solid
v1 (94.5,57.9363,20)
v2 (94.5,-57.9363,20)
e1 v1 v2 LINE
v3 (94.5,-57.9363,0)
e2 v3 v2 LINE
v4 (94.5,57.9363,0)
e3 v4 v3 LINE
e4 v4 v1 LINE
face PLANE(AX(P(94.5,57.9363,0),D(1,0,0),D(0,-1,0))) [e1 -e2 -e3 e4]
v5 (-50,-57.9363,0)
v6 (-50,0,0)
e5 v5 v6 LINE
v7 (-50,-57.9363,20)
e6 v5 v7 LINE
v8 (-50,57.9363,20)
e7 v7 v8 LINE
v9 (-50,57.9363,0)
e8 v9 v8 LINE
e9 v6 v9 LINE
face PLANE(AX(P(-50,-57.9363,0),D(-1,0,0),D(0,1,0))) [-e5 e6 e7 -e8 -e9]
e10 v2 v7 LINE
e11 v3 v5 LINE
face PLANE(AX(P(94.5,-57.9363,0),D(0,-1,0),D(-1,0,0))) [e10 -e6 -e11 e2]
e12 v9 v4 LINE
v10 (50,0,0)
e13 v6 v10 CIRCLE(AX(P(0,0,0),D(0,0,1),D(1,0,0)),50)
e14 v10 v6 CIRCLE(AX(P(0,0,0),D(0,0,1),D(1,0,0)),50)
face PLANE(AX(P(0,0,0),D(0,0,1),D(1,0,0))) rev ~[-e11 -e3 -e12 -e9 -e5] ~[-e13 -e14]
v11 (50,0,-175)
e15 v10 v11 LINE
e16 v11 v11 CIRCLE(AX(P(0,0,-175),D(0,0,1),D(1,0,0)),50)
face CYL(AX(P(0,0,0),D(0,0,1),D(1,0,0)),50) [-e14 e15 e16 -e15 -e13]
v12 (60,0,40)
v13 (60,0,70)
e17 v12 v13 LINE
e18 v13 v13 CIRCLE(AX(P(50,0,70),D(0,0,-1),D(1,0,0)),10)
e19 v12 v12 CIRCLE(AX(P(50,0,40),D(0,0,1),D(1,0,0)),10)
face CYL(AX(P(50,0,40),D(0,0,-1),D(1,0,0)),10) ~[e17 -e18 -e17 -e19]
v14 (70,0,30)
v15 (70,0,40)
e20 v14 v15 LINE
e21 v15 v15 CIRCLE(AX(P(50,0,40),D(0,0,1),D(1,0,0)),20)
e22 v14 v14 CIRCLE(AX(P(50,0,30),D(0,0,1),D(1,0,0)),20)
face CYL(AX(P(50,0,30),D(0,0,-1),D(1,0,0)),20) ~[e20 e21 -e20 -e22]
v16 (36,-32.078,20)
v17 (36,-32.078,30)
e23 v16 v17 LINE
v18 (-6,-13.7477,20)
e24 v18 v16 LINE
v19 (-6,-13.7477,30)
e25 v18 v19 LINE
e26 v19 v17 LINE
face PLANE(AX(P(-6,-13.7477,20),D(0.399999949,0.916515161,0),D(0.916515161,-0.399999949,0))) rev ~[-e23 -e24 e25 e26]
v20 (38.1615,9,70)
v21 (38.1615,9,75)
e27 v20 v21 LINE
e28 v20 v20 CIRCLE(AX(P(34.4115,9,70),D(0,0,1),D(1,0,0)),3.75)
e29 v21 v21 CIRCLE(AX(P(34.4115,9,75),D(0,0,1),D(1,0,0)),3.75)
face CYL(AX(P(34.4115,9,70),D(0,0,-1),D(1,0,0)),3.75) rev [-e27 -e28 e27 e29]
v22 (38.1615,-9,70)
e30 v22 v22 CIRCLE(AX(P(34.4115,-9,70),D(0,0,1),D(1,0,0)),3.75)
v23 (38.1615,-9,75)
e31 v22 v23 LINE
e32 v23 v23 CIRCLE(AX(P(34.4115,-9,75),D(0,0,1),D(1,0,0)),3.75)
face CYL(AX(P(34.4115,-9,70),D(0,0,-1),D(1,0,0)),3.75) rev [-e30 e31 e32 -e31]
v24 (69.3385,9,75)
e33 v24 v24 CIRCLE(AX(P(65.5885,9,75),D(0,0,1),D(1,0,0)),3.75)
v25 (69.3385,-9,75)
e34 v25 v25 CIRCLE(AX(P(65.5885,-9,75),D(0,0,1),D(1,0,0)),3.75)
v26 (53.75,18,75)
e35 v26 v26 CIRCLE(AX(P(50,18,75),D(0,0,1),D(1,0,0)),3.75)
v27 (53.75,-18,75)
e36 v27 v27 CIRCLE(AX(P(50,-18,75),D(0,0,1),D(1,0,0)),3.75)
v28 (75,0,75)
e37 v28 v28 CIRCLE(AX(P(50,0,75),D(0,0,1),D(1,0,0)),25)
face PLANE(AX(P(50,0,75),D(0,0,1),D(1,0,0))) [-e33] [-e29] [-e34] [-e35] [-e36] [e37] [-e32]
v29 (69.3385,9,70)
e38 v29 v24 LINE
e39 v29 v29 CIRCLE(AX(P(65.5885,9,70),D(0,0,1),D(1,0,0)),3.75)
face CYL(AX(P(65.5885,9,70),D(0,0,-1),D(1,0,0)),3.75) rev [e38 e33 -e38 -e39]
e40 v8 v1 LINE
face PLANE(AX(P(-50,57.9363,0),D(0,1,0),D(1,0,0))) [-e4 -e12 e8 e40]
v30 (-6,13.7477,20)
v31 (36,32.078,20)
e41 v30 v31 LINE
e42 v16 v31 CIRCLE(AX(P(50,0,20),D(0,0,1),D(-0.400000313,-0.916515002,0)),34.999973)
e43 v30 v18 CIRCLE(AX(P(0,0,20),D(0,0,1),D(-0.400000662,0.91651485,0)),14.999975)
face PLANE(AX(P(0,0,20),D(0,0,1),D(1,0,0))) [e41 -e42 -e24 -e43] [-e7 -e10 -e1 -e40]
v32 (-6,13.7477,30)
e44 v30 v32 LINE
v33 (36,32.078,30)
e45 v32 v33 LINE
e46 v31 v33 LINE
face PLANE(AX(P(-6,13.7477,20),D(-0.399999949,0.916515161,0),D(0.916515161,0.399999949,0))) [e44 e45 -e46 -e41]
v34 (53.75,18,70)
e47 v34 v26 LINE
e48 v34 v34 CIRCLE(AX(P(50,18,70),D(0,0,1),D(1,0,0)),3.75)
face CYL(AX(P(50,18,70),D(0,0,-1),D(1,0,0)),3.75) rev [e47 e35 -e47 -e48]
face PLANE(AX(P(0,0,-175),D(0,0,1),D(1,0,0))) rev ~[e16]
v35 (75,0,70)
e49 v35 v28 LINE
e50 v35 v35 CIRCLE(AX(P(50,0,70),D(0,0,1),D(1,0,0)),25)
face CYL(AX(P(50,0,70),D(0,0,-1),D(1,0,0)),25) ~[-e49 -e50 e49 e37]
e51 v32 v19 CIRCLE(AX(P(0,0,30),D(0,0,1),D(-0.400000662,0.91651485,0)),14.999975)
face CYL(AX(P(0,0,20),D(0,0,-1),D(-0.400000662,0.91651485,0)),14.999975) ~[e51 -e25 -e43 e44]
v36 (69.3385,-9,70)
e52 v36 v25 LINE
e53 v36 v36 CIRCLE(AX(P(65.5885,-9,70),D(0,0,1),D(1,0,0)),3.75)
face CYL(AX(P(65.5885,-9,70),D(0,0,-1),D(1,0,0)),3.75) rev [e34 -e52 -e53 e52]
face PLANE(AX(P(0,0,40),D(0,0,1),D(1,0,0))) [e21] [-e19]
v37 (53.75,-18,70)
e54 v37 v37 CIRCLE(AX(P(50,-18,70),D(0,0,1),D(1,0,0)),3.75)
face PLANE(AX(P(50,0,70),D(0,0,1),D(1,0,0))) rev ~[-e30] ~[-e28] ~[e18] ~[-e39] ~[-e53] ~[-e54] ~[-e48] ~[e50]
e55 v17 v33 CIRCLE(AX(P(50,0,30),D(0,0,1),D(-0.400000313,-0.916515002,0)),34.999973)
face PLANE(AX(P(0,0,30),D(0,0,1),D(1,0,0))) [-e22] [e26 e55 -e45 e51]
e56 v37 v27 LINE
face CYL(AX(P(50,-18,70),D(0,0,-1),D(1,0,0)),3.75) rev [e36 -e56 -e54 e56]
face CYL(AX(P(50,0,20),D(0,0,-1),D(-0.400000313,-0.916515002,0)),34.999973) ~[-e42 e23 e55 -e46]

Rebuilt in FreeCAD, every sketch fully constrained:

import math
import FreeCAD as App
import Part
import Sketcher

V = App.Vector

doc = App.newDocument("Part")
params = doc.addObject("Spreadsheet::Sheet", "Params")
for row, (alias, value) in enumerate([
    ("sketch1_diameter", "100 mm"),
    ("pad1_length", "175 mm"),
    ("sketch2_width", "144.5 mm"),
    ("pad2_length", "20 mm"),
    ("sketch3_radius", "15 mm"),
    ("sketch3_radius2", "35 mm"),
    ("pad3_length", "10 mm"),
    ("sketch4_diameter", "40 mm"),
    ("pad4_length", "10 mm"),
    ("sketch5_diameter", "20 mm"),
    ("pad5_length", "30 mm"),
    ("sketch6_diameter", "50 mm"),
    ("sketch6_diameter2", "7.5 mm"),
    ("pad6_length", "5 mm"),
], start=1):
    params.set(f"A{row}", alias)
    params.set(f"B{row}", "=" + value)
    params.setAlias(f"B{row}", alias)

body = doc.addObject("PartDesign::Body", "Body")

sketch1 = body.newObject("Sketcher::SketchObject", "Sketch")
sketch1.AttachmentSupport = (doc.getObject("XY_Plane"), [""])
sketch1.MapMode = "FlatFace"
sketch1.addGeometry(Part.Circle(V(0, 0, 0), V(0, 0, 1), 50), False)
sketch1.addConstraint([
    Sketcher.Constraint("Coincident", 0, 3, -1, 1),
    Sketcher.Constraint("Diameter", 0, 100.0),
])
sketch1.setExpression("Constraints[1]", "Params.sketch1_diameter")
pad1 = body.newObject("PartDesign::Pad", "Pad")
pad1.Profile = sketch1
pad1.setExpression("Length", "Params.pad1_length")
pad1.Reversed = True

sketch2 = body.newObject("Sketcher::SketchObject", "Sketch001")
sketch2.AttachmentSupport = (doc.getObject("XY_Plane"), [""])
sketch2.MapMode = "FlatFace"
sketch2.addGeometry([
    Part.LineSegment(V(94.5, -57.9363, 0), V(94.5, 57.9363, 0)),
    Part.LineSegment(V(94.5, 57.9363, 0), V(-50, 57.9363, 0)),
    Part.LineSegment(V(-50, 57.9363, 0), V(-50, -57.9363, 0)),
    Part.LineSegment(V(-50, -57.9363, 0), V(94.5, -57.9363, 0)),
], False)
sketch2.addConstraint([
    Sketcher.Constraint("Coincident", 0, 2, 1, 1),
    Sketcher.Constraint("Coincident", 1, 2, 2, 1),
    Sketcher.Constraint("Coincident", 2, 2, 3, 1),
    Sketcher.Constraint("Coincident", 3, 2, 0, 1),
    Sketcher.Constraint("Vertical", 0),
    Sketcher.Constraint("Horizontal", 1),
    Sketcher.Constraint("Vertical", 2),
    Sketcher.Constraint("Horizontal", 3),
    Sketcher.Constraint("DistanceX", 1, 2, 1, 1, 144.5),
    Sketcher.Constraint("DistanceY", 0, 1, 0, 2, 115.8726),
    Sketcher.Constraint("DistanceX", 1, 2, -1, 1, 50.0),
    Sketcher.Constraint("DistanceY", -1, 1, 0, 2, 57.9363),
])
sketch2.setExpression("Constraints[8]", "Params.sketch2_width")
pad2 = body.newObject("PartDesign::Pad", "Pad001")
pad2.Profile = sketch2
pad2.setExpression("Length", "Params.pad2_length")

sketch3 = body.newObject("Sketcher::SketchObject", "Sketch002")
sketch3.AttachmentSupport = (doc.getObject("XY_Plane"), [""])
sketch3.MapMode = "FlatFace"
sketch3.AttachmentOffset = App.Placement(V(0, 0, 20), App.Rotation())
sketch3.addGeometry([
    Part.LineSegment(V(36, 32.078, 0), V(-6, 13.7477, 0)),
    Part.ArcOfCircle(Part.Circle(V(0, 0, 0), V(0, 0, 1), 14.999975), math.radians(113.57822), math.radians(246.42178)),
    Part.LineSegment(V(-6, -13.7477, 0), V(36, -32.078, 0)),
    Part.ArcOfCircle(Part.Circle(V(50, 0, 0), V(0, 0, 1), 34.999973), math.radians(-113.578198), math.radians(113.578198)),
], False)
sketch3.addConstraint([
    Sketcher.Constraint("Tangent", 0, 2, 1, 1),
    Sketcher.Constraint("Tangent", 1, 2, 2, 1),
    Sketcher.Constraint("Tangent", 2, 2, 3, 1),
    Sketcher.Constraint("Tangent", 3, 2, 0, 1),
    Sketcher.Constraint("Coincident", 1, 3, -1, 1),
    Sketcher.Constraint("PointOnObject", 3, 3, -1),
    Sketcher.Constraint("Radius", 1, 15.0),
    Sketcher.Constraint("Radius", 3, 35.0),
    Sketcher.Constraint("DistanceX", -1, 1, 3, 3, 50.0),
])
sketch3.setExpression("Constraints[6]", "Params.sketch3_radius")
sketch3.setExpression("Constraints[7]", "Params.sketch3_radius2")
pad3 = body.newObject("PartDesign::Pad", "Pad002")
pad3.Profile = sketch3
pad3.setExpression("Length", "Params.pad3_length")

sketch4 = body.newObject("Sketcher::SketchObject", "Sketch003")
sketch4.AttachmentSupport = (doc.getObject("XY_Plane"), [""])
sketch4.MapMode = "FlatFace"
sketch4.AttachmentOffset = App.Placement(V(0, 0, 30), App.Rotation())
sketch4.addGeometry(Part.Circle(V(50, 0, 0), V(0, 0, 1), 20), False)
sketch4.addConstraint([
    Sketcher.Constraint("PointOnObject", 0, 3, -1),
    Sketcher.Constraint("Diameter", 0, 40.0),
    Sketcher.Constraint("DistanceX", -1, 1, 0, 3, 50.0),
])
sketch4.setExpression("Constraints[1]", "Params.sketch4_diameter")
pad4 = body.newObject("PartDesign::Pad", "Pad003")
pad4.Profile = sketch4
pad4.setExpression("Length", "Params.pad4_length")

sketch5 = body.newObject("Sketcher::SketchObject", "Sketch004")
sketch5.AttachmentSupport = (doc.getObject("XY_Plane"), [""])
sketch5.MapMode = "FlatFace"
sketch5.AttachmentOffset = App.Placement(V(0, 0, 40), App.Rotation())
sketch5.addGeometry(Part.Circle(V(50, 0, 0), V(0, 0, 1), 10), False)
sketch5.addConstraint([
    Sketcher.Constraint("PointOnObject", 0, 3, -1),
    Sketcher.Constraint("Diameter", 0, 20.0),
    Sketcher.Constraint("DistanceX", -1, 1, 0, 3, 50.0),
])
sketch5.setExpression("Constraints[1]", "Params.sketch5_diameter")
pad5 = body.newObject("PartDesign::Pad", "Pad004")
pad5.Profile = sketch5
pad5.setExpression("Length", "Params.pad5_length")

sketch6 = body.newObject("Sketcher::SketchObject", "Sketch005")
sketch6.AttachmentSupport = (doc.getObject("XY_Plane"), [""])
sketch6.MapMode = "FlatFace"
sketch6.AttachmentOffset = App.Placement(V(0, 0, 70), App.Rotation())
sketch6.addGeometry([
    Part.Circle(V(50, 0, 0), V(0, 0, 1), 25),
    Part.Circle(V(34.4115, -9, 0), V(0, 0, 1), 3.75),
    Part.Circle(V(50, -18, 0), V(0, 0, 1), 3.75),
    Part.Circle(V(65.5885, -9, 0), V(0, 0, 1), 3.75),
    Part.Circle(V(34.4115, 9, 0), V(0, 0, 1), 3.75),
    Part.Circle(V(65.5885, 9, 0), V(0, 0, 1), 3.75),
    Part.Circle(V(50, 18, 0), V(0, 0, 1), 3.75),
], False)
sketch6.addConstraint([
    Sketcher.Constraint("Equal", 1, 2),
    Sketcher.Constraint("Equal", 2, 3),
    Sketcher.Constraint("Equal", 3, 4),
    Sketcher.Constraint("Equal", 4, 5),
    Sketcher.Constraint("Equal", 5, 6),
    Sketcher.Constraint("Symmetric", 1, 3, 4, 3, -1),
    Sketcher.Constraint("Symmetric", 3, 3, 5, 3, -1),
    Sketcher.Constraint("Symmetric", 2, 3, 6, 3, -1),
    Sketcher.Constraint("PointOnObject", 0, 3, -1),
    Sketcher.Constraint("Horizontal", 1, 3, 3, 3),
    Sketcher.Constraint("Vertical", 0, 3, 2, 3),
    Sketcher.Constraint("Diameter", 0, 50.0),
    Sketcher.Constraint("Diameter", 1, 7.5),
    Sketcher.Constraint("DistanceX", -1, 1, 0, 3, 50.0),
    Sketcher.Constraint("DistanceY", 2, 3, -1, 1, 18.0),
    Sketcher.Constraint("DistanceY", 1, 3, 4, 3, 18.0),
    Sketcher.Constraint("DistanceX", 1, 3, 3, 3, 31.177),
    Sketcher.Constraint("DistanceX", -1, 1, 1, 3, 34.4115),
])
sketch6.setExpression("Constraints[11]", "Params.sketch6_diameter")
sketch6.setExpression("Constraints[12]", "Params.sketch6_diameter2")
pad6 = body.newObject("PartDesign::Pad", "Pad005")
pad6.Profile = sketch6
pad6.setExpression("Length", "Params.pad6_length")

doc.recompute()
